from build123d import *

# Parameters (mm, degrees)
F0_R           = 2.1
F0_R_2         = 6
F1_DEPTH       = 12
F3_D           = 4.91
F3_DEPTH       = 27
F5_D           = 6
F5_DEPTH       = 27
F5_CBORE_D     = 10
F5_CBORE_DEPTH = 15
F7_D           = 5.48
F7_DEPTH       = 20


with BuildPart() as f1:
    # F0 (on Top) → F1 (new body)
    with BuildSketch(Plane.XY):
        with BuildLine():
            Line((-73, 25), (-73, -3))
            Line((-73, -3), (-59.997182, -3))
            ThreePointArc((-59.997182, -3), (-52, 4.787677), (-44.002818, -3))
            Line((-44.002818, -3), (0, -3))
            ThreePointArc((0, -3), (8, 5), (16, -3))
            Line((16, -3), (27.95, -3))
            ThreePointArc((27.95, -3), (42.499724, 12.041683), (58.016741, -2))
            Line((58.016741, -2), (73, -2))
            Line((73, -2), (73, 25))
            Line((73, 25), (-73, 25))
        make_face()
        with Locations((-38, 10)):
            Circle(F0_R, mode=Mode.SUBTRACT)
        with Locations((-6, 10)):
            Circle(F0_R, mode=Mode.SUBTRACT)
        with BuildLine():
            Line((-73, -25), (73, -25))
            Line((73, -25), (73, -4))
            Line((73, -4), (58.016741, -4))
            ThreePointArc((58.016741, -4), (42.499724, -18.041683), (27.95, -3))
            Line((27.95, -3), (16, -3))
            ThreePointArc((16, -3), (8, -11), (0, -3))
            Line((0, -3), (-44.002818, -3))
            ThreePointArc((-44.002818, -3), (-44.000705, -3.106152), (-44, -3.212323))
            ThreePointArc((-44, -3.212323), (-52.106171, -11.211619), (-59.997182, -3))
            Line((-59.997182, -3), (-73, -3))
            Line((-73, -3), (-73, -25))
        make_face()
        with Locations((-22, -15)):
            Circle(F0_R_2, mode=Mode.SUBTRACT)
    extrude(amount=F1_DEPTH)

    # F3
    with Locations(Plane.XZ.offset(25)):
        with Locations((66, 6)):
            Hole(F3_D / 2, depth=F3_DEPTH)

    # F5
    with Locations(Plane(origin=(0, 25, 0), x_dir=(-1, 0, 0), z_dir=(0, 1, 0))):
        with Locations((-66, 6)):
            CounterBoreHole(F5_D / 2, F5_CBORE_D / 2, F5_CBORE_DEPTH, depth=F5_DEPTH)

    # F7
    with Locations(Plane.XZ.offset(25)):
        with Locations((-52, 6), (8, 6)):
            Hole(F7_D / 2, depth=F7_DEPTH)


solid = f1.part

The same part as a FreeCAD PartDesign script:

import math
import FreeCAD as App
import Part
import Sketcher
from FreeCAD import Vector

doc = App.newDocument("Part")
body = doc.addObject("PartDesign::Body", "Body")

# Sketch on XY plane
sketch1 = body.newObject("Sketcher::SketchObject", "Sketch")
sketch1.AttachmentSupport = (doc.getObject("XY_Plane"), [""])
sketch1.MapMode = "FlatFace"
sketch1.addGeometry(Part.LineSegment(Vector(-73, 25, 0), Vector(-73, -25, 0)), False)
sketch1.addGeometry(Part.LineSegment(Vector(-73, -25, 0), Vector(73, -25, 0)), False)
sketch1.addGeometry(Part.LineSegment(Vector(73, -25, 0), Vector(73, -4, 0)), False)
sketch1.addGeometry(Part.LineSegment(Vector(73, -4, 0), Vector(58.016741, -4, 0)), False)
sketch1.addGeometry(Part.ArcOfCircle(Part.Circle(Vector(43, -3, 0), Vector(0, 0, 1), 15.05), math.radians(-180), math.radians(-3.809836)), False)
sketch1.addGeometry(Part.ArcOfCircle(Part.Circle(Vector(43, -3, 0), Vector(0, 0, 1), 15.05), math.radians(3.809836), math.radians(180)), False)
sketch1.addGeometry(Part.LineSegment(Vector(58.016741, -2, 0), Vector(73, -2, 0)), False)
sketch1.addGeometry(Part.LineSegment(Vector(73, -2, 0), Vector(73, 25, 0)), False)
sketch1.addGeometry(Part.LineSegment(Vector(73, 25, 0), Vector(-73, 25, 0)), False)
sketch1.addGeometry(Part.Circle(Vector(-22, -15, 0), Vector(0, 0, 1), 6), False)
sketch1.addGeometry(Part.ArcOfCircle(Part.Circle(Vector(-52, -3.212323, 0), Vector(0, 0, 1), 8), math.radians(1.52083), math.radians(178.47917)), False)
sketch1.addGeometry(Part.ArcOfCircle(Part.Circle(Vector(-52.005482, -3.212393, 0), Vector(0, 0, 1), 8.005482), math.radians(0.000504), math.radians(1.520292)), False)
sketch1.addGeometry(Part.ArcOfCircle(Part.Circle(Vector(-52, -3.212324, 0), Vector(0, 0, 1), 8), math.radians(178.479166), math.radians(360.000004)), False)
sketch1.addGeometry(Part.Circle(Vector(-38, 10, 0), Vector(0, 0, 1), 2.1), False)
sketch1.addGeometry(Part.Circle(Vector(8, -3, 0), Vector(0, 0, 1), 8), False)
sketch1.addGeometry(Part.Circle(Vector(-6, 10, 0), Vector(0, 0, 1), 2.1), False)
sketch1.addConstraint(Sketcher.Constraint("Coincident", 0, 2, 1, 1))
sketch1.addConstraint(Sketcher.Constraint("Coincident", 1, 2, 2, 1))
sketch1.addConstraint(Sketcher.Constraint("Coincident", 2, 2, 3, 1))
sketch1.addConstraint(Sketcher.Constraint("Coincident", 3, 2, 4, 2))
sketch1.addConstraint(Sketcher.Constraint("Tangent", 4, 1, 5, 2))
sketch1.addConstraint(Sketcher.Constraint("Coincident", 5, 1, 6, 1))
sketch1.addConstraint(Sketcher.Constraint("Coincident", 6, 2, 7, 1))
sketch1.addConstraint(Sketcher.Constraint("Coincident", 7, 2, 8, 1))
sketch1.addConstraint(Sketcher.Constraint("Coincident", 8, 2, 0, 1))
sketch1.addConstraint(Sketcher.Constraint("Coincident", 10, 1, 11, 2))
sketch1.addConstraint(Sketcher.Constraint("Coincident", 11, 1, 12, 2))
sketch1.addConstraint(Sketcher.Constraint("Tangent", 12, 1, 10, 2))
sketch1.addConstraint(Sketcher.Constraint("Vertical", 0))
sketch1.addConstraint(Sketcher.Constraint("Horizontal", 1))
sketch1.addConstraint(Sketcher.Constraint("Vertical", 2))
sketch1.addConstraint(Sketcher.Constraint("Horizontal", 3))
sketch1.addConstraint(Sketcher.Constraint("Horizontal", 6))
sketch1.addConstraint(Sketcher.Constraint("Vertical", 7))
sketch1.addConstraint(Sketcher.Constraint("Horizontal", 8))
sketch1.addConstraint(Sketcher.Constraint("Equal", 4, 5))
sketch1.addConstraint(Sketcher.Constraint("Equal", 10, 12))
sketch1.addConstraint(Sketcher.Constraint("Equal", 12, 14))
sketch1.addConstraint(Sketcher.Constraint("Equal", 13, 15))
sketch1.addConstraint(Sketcher.Constraint("Symmetric", 0, 2, 7, 2, -1, 1))
sketch1.addConstraint(Sketcher.Constraint("Horizontal", 5, 3, 14, 3))
sketch1.addConstraint(Sketcher.Constraint("Horizontal", 13, 3, 15, 3))
sketch1.addConstraint(Sketcher.Constraint("Horizontal", 14, 3, 4, 1))
sketch1.addConstraint(Sketcher.Constraint("Horizontal", 4, 1, 10, 1))
sketch1.addConstraint(Sketcher.Constraint("Horizontal", 12, 3, 11, 1))
sketch1.addConstraint(Sketcher.Constraint("Horizontal", 10, 1, 12, 1))
sketch1.addConstraint(Sketcher.Constraint("Vertical", 3, 2, 5, 1))
sketch1.addConstraint(Sketcher.Constraint("Vertical", 2, 2, 6, 2))
sketch1.addConstraint(Sketcher.Constraint("Diameter", 9, 12.0))
sketch1.addConstraint(Sketcher.Constraint("Diameter", 14, 16.0))
sketch1.addConstraint(Sketcher.Constraint("Diameter", 13, 4.2))
sketch1.addConstraint(Sketcher.Constraint("DistanceX", 1, 1, 1, 2, 146.0))
sketch1.addConstraint(Sketcher.Constraint("DistanceY", 0, 2, 0, 1, 50.0))
sketch1.addConstraint(Sketcher.Constraint("DistanceY", 2, 1, 2, 2, 21.0))
sketch1.addConstraint(Sketcher.Constraint("DistanceY", 7, 1, 7, 2, 27.0))
sketch1.addConstraint(Sketcher.Constraint("Radius", 4, 15.05))
sketch1.addConstraint(Sketcher.Constraint("DistanceX", -1, 1, 4, 3, 43.0))
sketch1.addConstraint(Sketcher.Constraint("DistanceX", 9, 3, -1, 1, 22.0))
sketch1.addConstraint(Sketcher.Constraint("DistanceY", 9, 3, -1, 1, 15.0))
sketch1.addConstraint(Sketcher.Constraint("DistanceX", 10, 3, -1, 1, 52.0))
sketch1.addConstraint(Sketcher.Constraint("DistanceX", 13, 3, -1, 1, 38.0))
sketch1.addConstraint(Sketcher.Constraint("DistanceY", -1, 1, 13, 3, 10.0))
sketch1.addConstraint(Sketcher.Constraint("DistanceX", -1, 1, 14, 3, 8.0))
sketch1.addConstraint(Sketcher.Constraint("DistanceX", 15, 3, -1, 1, 6.0))
sketch1.addConstraint(Sketcher.Constraint("Radius", 11, 8.005482))
sketch1.addConstraint(Sketcher.Constraint("DistanceX", 12, 1, 11, 3, 7.9917))
pad1 = body.newObject("PartDesign::Pad", "Pad")
pad1.Profile = sketch1
pad1.Length = 12

# Sketch on XZ plane
sketch2 = body.newObject("Sketcher::SketchObject", "Sketch001")
sketch2.AttachmentSupport = (doc.getObject("XZ_Plane"), [""])
sketch2.MapMode = "FlatFace"
sketch2.AttachmentOffset = App.Placement(Vector(0, 0, 25), App.Rotation())
sketch2.addGeometry(Part.Circle(Vector(66, 6, 0), Vector(0, 0, 1), 2.455), False)
sketch2.addConstraint(Sketcher.Constraint("Diameter", 0, 4.91))
sketch2.addConstraint(Sketcher.Constraint("DistanceX", -1, 1, 0, 3, 66.0))
sketch2.addConstraint(Sketcher.Constraint("DistanceY", -1, 1, 0, 3, 6.0))
doc.recompute()
hole = body.newObject("PartDesign::Hole", "Hole")
hole.Profile = sketch2
hole.ThreadType = "None"
hole.Diameter = 4.91
hole.DepthType = "Dimension"
hole.Depth = 27
hole.DrillPoint = "Flat"

# Sketch on XZ plane
sketch3 = body.newObject("Sketcher::SketchObject", "Sketch002")
sketch3.AttachmentSupport = (doc.getObject("XZ_Plane"), [""])
sketch3.MapMode = "FlatFace"
sketch3.AttachmentOffset = App.Placement(Vector(0, 0, -25), App.Rotation())
sketch3.addGeometry(Part.Circle(Vector(66, 6, 0), Vector(0, 0, 1), 3), False)
sketch3.addConstraint(Sketcher.Constraint("Diameter", 0, 6.0))
sketch3.addConstraint(Sketcher.Constraint("DistanceX", -1, 1, 0, 3, 66.0))
sketch3.addConstraint(Sketcher.Constraint("DistanceY", -1, 1, 0, 3, 6.0))
doc.recompute()
hole2 = body.newObject("PartDesign::Hole", "Hole001")
hole2.Profile = sketch3
hole2.ThreadType = "None"
hole2.Diameter = 6
hole2.DepthType = "Dimension"
hole2.Depth = 27
hole2.DrillPoint = "Flat"
hole2.HoleCutType = "Counterbore"
hole2.HoleCutDiameter = 10
hole2.HoleCutDepth = 15
hole2.Reversed = True

# Sketch on XZ plane
sketch4 = body.newObject("Sketcher::SketchObject", "Sketch003")
sketch4.AttachmentSupport = (doc.getObject("XZ_Plane"), [""])
sketch4.MapMode = "FlatFace"
sketch4.AttachmentOffset = App.Placement(Vector(0, 0, 25), App.Rotation())
sketch4.addGeometry(Part.Circle(Vector(-52, 6, 0), Vector(0, 0, 1), 2.74), False)
sketch4.addGeometry(Part.Circle(Vector(8, 6, 0), Vector(0, 0, 1), 2.74), False)
sketch4.addConstraint(Sketcher.Constraint("Equal", 0, 1))
sketch4.addConstraint(Sketcher.Constraint("Horizontal", 0, 3, 1, 3))
sketch4.addConstraint(Sketcher.Constraint("Diameter", 0, 5.48))
sketch4.addConstraint(Sketcher.Constraint("DistanceX", 0, 3, -1, 1, 52.0))
sketch4.addConstraint(Sketcher.Constraint("DistanceY", -1, 1, 0, 3, 6.0))
sketch4.addConstraint(Sketcher.Constraint("DistanceX", -1, 1, 1, 3, 8.0))
doc.recompute()
hole3 = body.newObject("PartDesign::Hole", "Hole002")
hole3.Profile = sketch4
hole3.ThreadType = "None"
hole3.Diameter = 5.48
hole3.DepthType = "Dimension"
hole3.Depth = 20
hole3.DrillPoint = "Flat"

doc.recompute()
